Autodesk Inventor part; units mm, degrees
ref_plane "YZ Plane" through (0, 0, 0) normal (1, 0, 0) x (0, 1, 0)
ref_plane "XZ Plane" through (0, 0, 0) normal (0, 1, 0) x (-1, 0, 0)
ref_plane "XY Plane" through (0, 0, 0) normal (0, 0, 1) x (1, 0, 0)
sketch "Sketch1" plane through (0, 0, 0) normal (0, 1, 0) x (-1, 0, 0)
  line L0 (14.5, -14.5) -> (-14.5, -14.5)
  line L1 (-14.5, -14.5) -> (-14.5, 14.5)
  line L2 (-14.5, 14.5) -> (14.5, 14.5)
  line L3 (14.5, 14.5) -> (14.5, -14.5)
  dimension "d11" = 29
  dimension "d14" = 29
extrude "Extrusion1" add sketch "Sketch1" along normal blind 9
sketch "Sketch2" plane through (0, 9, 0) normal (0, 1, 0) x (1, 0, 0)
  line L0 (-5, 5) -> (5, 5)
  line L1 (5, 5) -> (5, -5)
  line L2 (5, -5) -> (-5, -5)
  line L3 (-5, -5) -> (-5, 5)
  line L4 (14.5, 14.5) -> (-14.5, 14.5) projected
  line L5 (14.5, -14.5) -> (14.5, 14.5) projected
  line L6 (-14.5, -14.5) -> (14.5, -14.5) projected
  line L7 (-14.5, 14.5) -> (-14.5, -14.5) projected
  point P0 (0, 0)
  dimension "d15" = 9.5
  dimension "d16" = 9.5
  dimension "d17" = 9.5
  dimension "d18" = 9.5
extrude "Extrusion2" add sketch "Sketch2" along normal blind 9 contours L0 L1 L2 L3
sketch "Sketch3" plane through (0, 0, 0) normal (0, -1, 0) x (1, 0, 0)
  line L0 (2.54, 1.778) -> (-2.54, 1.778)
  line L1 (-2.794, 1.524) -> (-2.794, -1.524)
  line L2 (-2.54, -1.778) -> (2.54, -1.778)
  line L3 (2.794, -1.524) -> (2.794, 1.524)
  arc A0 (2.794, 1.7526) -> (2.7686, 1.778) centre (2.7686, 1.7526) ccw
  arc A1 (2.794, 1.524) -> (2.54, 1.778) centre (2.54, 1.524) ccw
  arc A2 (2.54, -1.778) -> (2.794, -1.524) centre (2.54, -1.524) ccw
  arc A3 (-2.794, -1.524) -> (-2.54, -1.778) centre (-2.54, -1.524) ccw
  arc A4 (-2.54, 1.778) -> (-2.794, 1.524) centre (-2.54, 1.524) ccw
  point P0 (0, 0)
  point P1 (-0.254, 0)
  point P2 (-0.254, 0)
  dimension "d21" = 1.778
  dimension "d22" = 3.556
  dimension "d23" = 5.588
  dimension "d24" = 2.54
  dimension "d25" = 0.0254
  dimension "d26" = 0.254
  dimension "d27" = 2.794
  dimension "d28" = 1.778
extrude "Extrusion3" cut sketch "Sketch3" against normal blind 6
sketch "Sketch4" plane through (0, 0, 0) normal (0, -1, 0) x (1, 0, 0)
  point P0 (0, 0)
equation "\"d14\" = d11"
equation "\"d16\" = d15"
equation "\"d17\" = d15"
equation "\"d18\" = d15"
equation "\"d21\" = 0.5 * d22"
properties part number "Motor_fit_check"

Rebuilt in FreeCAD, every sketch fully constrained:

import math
import FreeCAD as App
import Part
import Sketcher
from FreeCAD import Vector
Q = App.Units.Quantity


def add_polygon(sketch, points):
    """Adds a closed chain of lines whose ends are joined by coincident constraints."""
    first, n = sketch.GeometryCount, len(points)
    for a, b in zip(points, points[1:] + points[:1]):
        sketch.addGeometry(Part.LineSegment(App.Vector(*a, 0), App.Vector(*b, 0)), False)
    for i in range(n):
        sketch.addConstraint(Sketcher.Constraint("Coincident", first + i, 2, first + (i + 1) % n, 1))

doc = App.newDocument("Part")
body = doc.addObject("PartDesign::Body", "Body")

# Sketch on XZ plane
sketch1 = doc.addObject("Sketcher::SketchObject", "Sketch")
body.addObject(sketch1)
sketch1.AttachmentSupport = (doc.XZ_Plane, [""])
sketch1.MapMode = "FlatFace"
add_polygon(sketch1, [(14.5, -14.5), (-14.5, -14.5), (-14.5, 14.5), (14.5, 14.5)])  # lines 0-3
sketch1.addConstraint(Sketcher.Constraint("Horizontal", 0))
sketch1.addConstraint(Sketcher.Constraint("Vertical", 1))
sketch1.addConstraint(Sketcher.Constraint("Horizontal", 2))
sketch1.addConstraint(Sketcher.Constraint("Vertical", 3))
sketch1.addConstraint(Sketcher.Constraint("Symmetric", 0, 2, 2, 2, -1, 1))
sketch1.addConstraint(Sketcher.Constraint("Equal", 2, 1))
sketch1.addConstraint(Sketcher.Constraint("DistanceX", 0, 2, 0, 1, Q("29 mm")))
pad1 = doc.addObject("PartDesign::Pad", "Pad")
body.addObject(pad1)
pad1.Profile = sketch1
pad1.Length = 9
pad1.Reversed = True

# Sketch on XZ plane
sketch2 = doc.addObject("Sketcher::SketchObject", "Sketch001")
body.addObject(sketch2)
sketch2.AttachmentSupport = (doc.XZ_Plane, [""])
sketch2.MapMode = "FlatFace"
sketch2.AttachmentOffset = App.Placement(Vector(0, 0, -9), App.Rotation())
add_polygon(sketch2, [(5, -5), (-5, -5), (-5, 5), (5, 5)])  # lines 0-3
sketch2.addConstraint(Sketcher.Constraint("Horizontal", 0))
sketch2.addConstraint(Sketcher.Constraint("Vertical", 1))
sketch2.addConstraint(Sketcher.Constraint("Horizontal", 2))
sketch2.addConstraint(Sketcher.Constraint("Vertical", 3))
sketch2.addConstraint(Sketcher.Constraint("Symmetric", 0, 2, 2, 2, -1, 1))
sketch2.addConstraint(Sketcher.Constraint("Equal", 2, 1))
sketch2.addConstraint(Sketcher.Constraint("DistanceX", 0, 2, 0, 1, Q("10 mm")))
pad2 = doc.addObject("PartDesign::Pad", "Pad001")
body.addObject(pad2)
pad2.Profile = sketch2
pad2.Length = 9
pad2.Reversed = True

# Sketch on XZ plane
sketch3 = doc.addObject("Sketcher::SketchObject", "Sketch002")
body.addObject(sketch3)
sketch3.AttachmentSupport = (doc.XZ_Plane, [""])
sketch3.MapMode = "FlatFace"
sketch3.addGeometry(Part.ArcOfCircle(Part.Circle(Vector(2.54, 1.524, 0), Vector(0, 0, 1), 0.254), math.radians(0), math.radians(90)), False)
sketch3.addGeometry(Part.LineSegment(Vector(2.54, 1.778, 0), Vector(-2.54, 1.778, 0)), False)
sketch3.addGeometry(Part.ArcOfCircle(Part.Circle(Vector(-2.54, 1.524, 0), Vector(0, 0, 1), 0.254), math.radians(90), math.radians(180)), False)
sketch3.addGeometry(Part.LineSegment(Vector(-2.794, 1.524, 0), Vector(-2.794, -1.524, 0)), False)
sketch3.addGeometry(Part.ArcOfCircle(Part.Circle(Vector(-2.54, -1.524, 0), Vector(0, 0, 1), 0.254), math.radians(180), math.radians(270)), False)
sketch3.addGeometry(Part.LineSegment(Vector(-2.54, -1.778, 0), Vector(2.54, -1.778, 0)), False)
sketch3.addGeometry(Part.ArcOfCircle(Part.Circle(Vector(2.54, -1.524, 0), Vector(0, 0, 1), 0.254), math.radians(-90), math.radians(0)), False)
sketch3.addGeometry(Part.LineSegment(Vector(2.794, -1.524, 0), Vector(2.794, 1.524, 0)), False)
sketch3.addConstraint(Sketcher.Constraint("Tangent", 0, 2, 1, 1))
sketch3.addConstraint(Sketcher.Constraint("Tangent", 1, 2, 2, 1))
sketch3.addConstraint(Sketcher.Constraint("Tangent", 2, 2, 3, 1))
sketch3.addConstraint(Sketcher.Constraint("Tangent", 3, 2, 4, 1))
sketch3.addConstraint(Sketcher.Constraint("Tangent", 4, 2, 5, 1))
sketch3.addConstraint(Sketcher.Constraint("Tangent", 5, 2, 6, 1))
sketch3.addConstraint(Sketcher.Constraint("Tangent", 6, 2, 7, 1))
sketch3.addConstraint(Sketcher.Constraint("Tangent", 7, 2, 0, 1))
sketch3.addConstraint(Sketcher.Constraint("Horizontal", 1))
sketch3.addConstraint(Sketcher.Constraint("Vertical", 3))
sketch3.addConstraint(Sketcher.Constraint("Horizontal", 5))
sketch3.addConstraint(Sketcher.Constraint("Vertical", 7))
sketch3.addConstraint(Sketcher.Constraint("Equal", 0, 2))
sketch3.addConstraint(Sketcher.Constraint("Equal", 2, 4))
sketch3.addConstraint(Sketcher.Constraint("Equal", 4, 6))
sketch3.addConstraint(Sketcher.Constraint("Symmetric", 0, 3, 4, 3, -1, 1))
sketch3.addConstraint(Sketcher.Constraint("Radius", 0, Q("0.254 mm")))
sketch3.addConstraint(Sketcher.Constraint("DistanceX", -1, 1, 0, 3, Q("2.54 mm")))
sketch3.addConstraint(Sketcher.Constraint("DistanceY", -1, 1, 0, 2, Q("1.778 mm")))
pocket1 = doc.addObject("PartDesign::Pocket", "Pocket")
body.addObject(pocket1)
pocket1.Profile = sketch3
pocket1.Length = 6

doc.recompute()
